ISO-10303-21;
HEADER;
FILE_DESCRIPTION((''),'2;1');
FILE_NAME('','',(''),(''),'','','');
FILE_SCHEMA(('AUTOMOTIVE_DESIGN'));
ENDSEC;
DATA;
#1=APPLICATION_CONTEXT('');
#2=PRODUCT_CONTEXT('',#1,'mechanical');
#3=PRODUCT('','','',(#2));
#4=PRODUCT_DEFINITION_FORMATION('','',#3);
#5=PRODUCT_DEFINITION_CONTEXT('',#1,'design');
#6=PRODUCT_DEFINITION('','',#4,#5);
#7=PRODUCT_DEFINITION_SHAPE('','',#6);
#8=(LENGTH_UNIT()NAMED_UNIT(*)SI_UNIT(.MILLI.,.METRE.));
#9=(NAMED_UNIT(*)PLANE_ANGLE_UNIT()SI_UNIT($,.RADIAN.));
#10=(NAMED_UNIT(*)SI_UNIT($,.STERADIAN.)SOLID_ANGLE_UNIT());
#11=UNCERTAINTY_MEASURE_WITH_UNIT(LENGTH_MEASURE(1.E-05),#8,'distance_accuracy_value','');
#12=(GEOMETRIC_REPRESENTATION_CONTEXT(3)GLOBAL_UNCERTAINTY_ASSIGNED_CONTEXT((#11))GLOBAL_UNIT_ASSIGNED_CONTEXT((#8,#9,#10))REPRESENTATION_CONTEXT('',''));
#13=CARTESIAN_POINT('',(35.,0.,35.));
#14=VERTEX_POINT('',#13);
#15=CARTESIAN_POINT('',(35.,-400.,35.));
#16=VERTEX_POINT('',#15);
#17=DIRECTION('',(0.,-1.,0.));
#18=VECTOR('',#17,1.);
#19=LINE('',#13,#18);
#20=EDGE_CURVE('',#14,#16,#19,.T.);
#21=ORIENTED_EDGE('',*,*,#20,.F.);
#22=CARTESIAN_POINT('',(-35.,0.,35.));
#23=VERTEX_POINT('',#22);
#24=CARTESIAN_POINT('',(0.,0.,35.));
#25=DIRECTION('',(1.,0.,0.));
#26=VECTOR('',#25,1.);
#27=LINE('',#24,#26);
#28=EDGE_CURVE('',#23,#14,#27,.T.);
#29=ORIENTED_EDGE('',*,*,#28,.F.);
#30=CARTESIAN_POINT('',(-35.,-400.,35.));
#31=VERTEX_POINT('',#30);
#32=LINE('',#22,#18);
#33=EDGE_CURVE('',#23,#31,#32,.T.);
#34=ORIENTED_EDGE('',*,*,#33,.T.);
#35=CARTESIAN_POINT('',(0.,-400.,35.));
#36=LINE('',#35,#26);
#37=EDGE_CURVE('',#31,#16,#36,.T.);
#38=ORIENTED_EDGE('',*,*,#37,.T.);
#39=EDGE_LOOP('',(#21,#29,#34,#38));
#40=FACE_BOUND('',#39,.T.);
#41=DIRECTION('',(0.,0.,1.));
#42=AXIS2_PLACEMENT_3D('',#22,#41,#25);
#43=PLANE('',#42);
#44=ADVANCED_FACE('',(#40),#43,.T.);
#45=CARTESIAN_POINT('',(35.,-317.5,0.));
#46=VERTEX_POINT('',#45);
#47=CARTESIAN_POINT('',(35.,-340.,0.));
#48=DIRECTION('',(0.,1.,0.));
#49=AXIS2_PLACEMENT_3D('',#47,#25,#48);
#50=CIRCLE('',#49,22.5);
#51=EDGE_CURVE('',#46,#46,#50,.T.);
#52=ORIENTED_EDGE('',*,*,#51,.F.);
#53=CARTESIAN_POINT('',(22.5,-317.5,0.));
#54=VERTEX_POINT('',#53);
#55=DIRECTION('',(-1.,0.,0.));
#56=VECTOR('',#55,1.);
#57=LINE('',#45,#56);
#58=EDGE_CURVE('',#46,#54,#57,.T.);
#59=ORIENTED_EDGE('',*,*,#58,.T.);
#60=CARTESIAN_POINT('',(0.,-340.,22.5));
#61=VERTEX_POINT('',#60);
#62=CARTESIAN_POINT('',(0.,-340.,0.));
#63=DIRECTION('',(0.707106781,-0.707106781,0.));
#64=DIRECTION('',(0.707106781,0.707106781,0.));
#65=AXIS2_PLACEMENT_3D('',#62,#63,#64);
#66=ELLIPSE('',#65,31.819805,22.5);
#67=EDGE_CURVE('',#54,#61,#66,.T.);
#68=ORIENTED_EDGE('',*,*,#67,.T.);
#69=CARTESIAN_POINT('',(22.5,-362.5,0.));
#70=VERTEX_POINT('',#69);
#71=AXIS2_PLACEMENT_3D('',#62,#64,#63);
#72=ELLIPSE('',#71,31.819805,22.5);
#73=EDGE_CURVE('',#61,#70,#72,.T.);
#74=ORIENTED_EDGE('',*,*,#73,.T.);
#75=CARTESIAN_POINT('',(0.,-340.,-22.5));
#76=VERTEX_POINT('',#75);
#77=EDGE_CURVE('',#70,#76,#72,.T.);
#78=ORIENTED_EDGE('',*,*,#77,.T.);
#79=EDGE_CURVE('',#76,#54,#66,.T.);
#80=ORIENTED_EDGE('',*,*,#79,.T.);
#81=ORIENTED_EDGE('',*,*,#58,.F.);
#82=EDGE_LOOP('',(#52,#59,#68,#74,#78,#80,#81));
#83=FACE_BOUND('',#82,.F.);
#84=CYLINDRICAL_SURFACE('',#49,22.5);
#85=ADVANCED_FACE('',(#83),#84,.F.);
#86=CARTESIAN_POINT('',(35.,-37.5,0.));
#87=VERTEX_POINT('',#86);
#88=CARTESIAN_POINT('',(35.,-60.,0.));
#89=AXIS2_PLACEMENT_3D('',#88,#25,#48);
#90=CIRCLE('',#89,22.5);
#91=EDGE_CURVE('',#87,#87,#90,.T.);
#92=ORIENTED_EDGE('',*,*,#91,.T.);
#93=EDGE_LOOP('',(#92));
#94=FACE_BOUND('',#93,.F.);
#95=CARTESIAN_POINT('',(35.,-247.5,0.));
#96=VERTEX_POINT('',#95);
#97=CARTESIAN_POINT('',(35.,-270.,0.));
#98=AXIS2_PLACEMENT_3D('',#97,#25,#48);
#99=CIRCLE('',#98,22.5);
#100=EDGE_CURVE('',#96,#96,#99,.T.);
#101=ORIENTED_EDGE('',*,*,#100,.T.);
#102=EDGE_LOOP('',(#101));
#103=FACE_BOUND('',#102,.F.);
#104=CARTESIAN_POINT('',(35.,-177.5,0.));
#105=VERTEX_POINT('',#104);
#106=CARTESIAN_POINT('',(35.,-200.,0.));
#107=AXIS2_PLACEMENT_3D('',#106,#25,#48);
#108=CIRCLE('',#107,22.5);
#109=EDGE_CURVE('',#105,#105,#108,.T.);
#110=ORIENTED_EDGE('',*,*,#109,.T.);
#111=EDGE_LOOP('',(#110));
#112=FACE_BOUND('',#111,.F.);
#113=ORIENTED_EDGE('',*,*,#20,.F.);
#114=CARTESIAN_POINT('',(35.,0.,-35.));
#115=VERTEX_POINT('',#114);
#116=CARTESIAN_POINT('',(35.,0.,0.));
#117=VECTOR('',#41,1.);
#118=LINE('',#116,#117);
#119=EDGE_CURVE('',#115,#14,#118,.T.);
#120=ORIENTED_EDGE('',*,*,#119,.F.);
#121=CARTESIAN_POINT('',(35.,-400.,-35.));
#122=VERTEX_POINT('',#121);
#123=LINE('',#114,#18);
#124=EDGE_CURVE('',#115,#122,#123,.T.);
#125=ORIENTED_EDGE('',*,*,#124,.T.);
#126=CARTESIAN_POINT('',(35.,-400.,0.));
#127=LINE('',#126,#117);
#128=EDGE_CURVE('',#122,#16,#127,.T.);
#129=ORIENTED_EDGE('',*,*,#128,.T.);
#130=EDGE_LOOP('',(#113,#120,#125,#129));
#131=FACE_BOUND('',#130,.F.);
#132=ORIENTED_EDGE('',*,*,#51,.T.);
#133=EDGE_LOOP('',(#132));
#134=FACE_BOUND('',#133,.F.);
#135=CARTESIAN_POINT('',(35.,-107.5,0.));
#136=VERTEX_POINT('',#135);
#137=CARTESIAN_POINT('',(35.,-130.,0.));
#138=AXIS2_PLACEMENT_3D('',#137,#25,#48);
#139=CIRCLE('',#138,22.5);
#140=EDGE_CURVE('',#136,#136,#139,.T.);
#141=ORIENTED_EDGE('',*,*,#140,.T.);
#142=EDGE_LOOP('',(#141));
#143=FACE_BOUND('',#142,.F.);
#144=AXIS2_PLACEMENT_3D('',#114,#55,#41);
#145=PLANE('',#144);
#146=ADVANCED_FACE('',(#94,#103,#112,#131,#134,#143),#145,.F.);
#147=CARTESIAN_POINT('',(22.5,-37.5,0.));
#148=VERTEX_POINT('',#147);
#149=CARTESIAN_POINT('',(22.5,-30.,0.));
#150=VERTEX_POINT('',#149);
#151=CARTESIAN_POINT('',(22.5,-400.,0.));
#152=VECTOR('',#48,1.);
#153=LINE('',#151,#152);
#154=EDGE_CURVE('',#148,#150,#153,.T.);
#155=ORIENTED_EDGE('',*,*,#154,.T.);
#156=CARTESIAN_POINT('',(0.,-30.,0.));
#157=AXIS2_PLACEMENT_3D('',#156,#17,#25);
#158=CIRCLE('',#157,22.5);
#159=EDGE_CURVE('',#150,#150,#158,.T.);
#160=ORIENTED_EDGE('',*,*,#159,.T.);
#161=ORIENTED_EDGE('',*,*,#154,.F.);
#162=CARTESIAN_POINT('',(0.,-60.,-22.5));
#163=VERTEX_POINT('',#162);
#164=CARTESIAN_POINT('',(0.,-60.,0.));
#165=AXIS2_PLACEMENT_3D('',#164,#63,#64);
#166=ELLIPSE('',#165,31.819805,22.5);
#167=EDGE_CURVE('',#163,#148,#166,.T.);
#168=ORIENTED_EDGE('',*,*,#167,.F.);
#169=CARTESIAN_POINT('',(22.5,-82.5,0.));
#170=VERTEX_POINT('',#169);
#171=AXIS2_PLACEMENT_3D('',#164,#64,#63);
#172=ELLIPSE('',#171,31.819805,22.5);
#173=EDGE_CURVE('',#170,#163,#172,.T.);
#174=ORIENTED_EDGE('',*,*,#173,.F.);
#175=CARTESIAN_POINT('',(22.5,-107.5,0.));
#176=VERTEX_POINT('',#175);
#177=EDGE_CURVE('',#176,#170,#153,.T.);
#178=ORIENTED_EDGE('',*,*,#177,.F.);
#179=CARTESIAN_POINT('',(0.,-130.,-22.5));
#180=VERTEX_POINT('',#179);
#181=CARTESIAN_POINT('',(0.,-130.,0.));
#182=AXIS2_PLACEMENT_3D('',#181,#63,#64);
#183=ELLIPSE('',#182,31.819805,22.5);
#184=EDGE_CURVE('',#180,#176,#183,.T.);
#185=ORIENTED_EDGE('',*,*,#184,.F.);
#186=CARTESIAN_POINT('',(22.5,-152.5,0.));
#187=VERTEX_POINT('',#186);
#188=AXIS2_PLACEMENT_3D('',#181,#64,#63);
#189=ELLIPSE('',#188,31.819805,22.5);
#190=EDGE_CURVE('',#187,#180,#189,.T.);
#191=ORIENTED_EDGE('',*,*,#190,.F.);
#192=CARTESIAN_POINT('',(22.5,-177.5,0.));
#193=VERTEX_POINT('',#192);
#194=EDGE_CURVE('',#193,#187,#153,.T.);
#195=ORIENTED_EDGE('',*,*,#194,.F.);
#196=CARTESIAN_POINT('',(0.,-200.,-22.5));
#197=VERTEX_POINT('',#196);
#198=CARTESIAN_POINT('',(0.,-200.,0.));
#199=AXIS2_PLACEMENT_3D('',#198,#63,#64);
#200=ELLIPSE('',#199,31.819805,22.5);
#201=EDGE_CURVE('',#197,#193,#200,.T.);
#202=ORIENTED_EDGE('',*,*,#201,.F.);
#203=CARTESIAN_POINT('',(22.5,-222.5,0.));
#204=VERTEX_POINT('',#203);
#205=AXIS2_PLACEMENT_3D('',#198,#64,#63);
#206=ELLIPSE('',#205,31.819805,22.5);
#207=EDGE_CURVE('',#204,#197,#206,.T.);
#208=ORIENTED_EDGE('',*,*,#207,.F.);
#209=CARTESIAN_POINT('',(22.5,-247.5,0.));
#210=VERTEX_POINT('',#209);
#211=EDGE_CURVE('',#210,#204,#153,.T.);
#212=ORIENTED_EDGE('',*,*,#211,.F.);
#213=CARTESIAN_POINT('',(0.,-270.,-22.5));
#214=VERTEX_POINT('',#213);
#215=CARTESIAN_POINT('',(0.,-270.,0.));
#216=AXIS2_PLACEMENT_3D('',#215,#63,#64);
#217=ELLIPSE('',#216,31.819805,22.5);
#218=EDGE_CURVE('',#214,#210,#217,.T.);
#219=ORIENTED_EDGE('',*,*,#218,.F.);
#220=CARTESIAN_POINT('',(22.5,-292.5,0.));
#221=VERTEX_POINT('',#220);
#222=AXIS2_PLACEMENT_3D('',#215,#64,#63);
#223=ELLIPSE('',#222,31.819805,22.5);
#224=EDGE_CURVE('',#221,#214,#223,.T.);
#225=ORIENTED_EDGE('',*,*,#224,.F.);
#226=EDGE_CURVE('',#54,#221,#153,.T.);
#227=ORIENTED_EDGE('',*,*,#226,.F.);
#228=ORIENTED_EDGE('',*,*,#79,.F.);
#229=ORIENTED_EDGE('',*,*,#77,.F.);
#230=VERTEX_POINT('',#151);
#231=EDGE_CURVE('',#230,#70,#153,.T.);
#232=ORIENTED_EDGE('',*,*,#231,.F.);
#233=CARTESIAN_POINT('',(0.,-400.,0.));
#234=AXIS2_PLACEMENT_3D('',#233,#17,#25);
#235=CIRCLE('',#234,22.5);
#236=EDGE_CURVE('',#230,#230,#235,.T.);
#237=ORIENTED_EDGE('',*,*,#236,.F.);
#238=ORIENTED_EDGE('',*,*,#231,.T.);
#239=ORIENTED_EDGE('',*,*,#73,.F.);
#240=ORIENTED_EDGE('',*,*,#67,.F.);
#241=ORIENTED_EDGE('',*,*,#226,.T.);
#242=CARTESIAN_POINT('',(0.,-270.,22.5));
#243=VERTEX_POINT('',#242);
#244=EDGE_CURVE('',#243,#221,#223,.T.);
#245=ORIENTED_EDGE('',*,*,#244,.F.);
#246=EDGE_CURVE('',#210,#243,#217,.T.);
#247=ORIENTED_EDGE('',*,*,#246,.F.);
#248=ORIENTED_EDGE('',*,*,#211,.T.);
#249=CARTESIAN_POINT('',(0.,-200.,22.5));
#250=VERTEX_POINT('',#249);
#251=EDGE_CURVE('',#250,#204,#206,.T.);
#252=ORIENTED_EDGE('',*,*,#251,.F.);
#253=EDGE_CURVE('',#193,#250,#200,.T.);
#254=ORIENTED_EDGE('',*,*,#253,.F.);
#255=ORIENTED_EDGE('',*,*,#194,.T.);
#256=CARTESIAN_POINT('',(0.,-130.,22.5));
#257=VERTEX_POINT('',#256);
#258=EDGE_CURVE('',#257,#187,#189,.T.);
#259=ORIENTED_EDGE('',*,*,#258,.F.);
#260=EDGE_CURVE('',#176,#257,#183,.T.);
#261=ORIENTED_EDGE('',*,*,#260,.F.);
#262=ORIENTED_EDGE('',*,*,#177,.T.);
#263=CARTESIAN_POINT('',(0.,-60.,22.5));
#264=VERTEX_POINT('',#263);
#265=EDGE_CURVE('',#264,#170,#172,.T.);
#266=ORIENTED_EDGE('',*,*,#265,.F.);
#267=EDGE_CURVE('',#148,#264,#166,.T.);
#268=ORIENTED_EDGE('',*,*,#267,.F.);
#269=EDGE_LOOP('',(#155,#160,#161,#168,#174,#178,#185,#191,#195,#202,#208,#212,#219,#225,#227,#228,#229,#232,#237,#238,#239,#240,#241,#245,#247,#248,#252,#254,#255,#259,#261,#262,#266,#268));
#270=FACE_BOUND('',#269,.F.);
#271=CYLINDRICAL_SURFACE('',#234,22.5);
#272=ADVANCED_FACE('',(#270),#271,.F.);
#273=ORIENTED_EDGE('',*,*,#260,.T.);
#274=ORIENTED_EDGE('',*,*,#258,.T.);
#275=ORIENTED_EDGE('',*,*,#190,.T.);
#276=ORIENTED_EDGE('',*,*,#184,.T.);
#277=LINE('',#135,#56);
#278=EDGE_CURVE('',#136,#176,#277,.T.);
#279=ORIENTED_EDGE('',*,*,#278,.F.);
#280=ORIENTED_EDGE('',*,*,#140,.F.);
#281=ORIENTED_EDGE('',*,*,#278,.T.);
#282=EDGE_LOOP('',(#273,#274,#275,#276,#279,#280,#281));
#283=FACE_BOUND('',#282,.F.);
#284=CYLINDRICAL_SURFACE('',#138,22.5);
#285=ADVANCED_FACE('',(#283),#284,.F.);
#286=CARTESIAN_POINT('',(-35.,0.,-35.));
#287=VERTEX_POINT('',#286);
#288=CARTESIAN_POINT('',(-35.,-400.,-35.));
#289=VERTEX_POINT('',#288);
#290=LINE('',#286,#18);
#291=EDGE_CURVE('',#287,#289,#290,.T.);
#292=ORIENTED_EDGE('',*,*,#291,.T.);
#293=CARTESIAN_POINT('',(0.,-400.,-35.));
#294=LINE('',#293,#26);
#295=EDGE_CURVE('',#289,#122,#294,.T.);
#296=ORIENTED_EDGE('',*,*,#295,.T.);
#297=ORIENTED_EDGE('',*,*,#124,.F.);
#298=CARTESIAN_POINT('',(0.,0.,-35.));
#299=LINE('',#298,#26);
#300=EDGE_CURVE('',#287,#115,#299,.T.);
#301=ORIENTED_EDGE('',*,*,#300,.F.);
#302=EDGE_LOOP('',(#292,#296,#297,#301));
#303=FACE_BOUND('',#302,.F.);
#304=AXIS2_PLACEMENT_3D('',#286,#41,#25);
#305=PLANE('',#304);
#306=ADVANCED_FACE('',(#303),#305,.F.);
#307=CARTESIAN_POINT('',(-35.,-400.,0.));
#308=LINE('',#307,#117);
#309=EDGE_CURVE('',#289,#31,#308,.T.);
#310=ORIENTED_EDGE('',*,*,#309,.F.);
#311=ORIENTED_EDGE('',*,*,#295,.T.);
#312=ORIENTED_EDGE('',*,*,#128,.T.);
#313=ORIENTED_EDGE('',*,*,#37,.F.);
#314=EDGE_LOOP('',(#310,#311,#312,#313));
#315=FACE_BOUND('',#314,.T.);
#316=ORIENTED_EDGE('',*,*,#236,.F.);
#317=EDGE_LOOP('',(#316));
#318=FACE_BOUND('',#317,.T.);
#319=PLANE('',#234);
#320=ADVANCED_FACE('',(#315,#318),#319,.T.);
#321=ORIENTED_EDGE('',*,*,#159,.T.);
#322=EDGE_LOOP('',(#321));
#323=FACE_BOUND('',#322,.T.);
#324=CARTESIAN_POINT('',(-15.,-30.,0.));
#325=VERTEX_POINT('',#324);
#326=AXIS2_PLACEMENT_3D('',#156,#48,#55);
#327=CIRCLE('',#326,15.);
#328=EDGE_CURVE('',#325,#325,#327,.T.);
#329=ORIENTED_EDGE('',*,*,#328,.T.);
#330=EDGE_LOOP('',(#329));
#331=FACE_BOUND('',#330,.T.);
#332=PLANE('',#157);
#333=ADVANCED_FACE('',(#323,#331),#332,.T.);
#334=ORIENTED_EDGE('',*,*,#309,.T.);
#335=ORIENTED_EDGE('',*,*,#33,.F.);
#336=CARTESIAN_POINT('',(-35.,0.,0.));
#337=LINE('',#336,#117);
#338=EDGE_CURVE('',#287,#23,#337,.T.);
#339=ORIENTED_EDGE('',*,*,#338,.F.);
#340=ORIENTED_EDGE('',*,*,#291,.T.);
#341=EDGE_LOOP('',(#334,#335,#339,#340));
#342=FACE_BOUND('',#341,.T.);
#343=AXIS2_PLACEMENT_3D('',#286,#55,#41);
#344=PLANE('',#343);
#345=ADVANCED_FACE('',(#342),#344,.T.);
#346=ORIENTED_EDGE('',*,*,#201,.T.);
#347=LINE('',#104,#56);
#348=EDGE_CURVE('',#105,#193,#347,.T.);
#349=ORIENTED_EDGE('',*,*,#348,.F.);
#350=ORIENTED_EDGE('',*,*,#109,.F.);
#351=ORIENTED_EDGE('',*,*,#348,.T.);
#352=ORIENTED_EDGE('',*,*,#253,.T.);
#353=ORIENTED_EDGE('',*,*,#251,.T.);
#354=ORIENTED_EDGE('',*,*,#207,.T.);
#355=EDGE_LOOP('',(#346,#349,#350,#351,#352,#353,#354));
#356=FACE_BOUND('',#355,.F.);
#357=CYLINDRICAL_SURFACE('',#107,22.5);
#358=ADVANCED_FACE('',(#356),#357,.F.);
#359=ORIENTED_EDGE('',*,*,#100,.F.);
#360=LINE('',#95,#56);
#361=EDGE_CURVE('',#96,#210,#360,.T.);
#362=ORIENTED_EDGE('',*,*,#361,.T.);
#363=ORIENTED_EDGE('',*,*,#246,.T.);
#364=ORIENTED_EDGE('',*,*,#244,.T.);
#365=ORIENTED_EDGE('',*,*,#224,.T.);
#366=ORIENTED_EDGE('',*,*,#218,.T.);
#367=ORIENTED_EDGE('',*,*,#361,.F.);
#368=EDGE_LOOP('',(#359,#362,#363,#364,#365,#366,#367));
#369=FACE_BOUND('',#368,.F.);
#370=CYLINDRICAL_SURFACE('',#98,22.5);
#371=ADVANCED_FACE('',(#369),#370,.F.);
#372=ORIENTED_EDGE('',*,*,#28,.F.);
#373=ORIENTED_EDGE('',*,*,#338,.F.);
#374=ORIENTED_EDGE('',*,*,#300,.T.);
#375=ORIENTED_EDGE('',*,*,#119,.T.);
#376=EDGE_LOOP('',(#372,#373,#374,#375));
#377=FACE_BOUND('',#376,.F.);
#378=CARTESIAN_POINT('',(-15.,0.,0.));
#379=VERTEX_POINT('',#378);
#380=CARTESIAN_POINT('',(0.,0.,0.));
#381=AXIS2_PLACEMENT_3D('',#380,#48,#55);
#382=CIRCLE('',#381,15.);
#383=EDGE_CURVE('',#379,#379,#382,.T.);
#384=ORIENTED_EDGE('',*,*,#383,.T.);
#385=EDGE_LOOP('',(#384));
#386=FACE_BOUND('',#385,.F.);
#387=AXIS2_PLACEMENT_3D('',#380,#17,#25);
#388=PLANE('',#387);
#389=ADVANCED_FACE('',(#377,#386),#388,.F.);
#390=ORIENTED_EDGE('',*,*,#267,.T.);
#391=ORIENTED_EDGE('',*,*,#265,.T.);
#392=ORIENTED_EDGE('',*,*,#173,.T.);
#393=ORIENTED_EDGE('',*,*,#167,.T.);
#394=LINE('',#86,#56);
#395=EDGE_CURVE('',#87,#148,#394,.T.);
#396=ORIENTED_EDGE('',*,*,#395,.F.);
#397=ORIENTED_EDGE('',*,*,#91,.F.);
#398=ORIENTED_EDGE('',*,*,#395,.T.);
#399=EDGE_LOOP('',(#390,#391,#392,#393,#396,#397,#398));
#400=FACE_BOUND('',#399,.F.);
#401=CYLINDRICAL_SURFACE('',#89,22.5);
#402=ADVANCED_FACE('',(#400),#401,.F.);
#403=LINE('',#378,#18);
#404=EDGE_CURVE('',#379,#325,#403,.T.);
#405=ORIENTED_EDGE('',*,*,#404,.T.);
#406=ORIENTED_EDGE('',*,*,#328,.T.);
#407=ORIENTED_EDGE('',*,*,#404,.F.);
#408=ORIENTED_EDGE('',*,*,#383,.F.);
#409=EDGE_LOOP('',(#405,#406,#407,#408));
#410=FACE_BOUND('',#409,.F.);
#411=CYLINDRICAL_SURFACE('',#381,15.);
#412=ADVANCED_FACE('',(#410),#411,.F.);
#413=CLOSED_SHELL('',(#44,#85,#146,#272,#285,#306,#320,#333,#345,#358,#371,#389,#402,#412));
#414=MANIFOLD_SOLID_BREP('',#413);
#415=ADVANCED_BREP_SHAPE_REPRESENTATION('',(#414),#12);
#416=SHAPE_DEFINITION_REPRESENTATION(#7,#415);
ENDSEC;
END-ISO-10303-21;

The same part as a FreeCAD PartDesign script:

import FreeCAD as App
import Part
import Sketcher

V = App.Vector
Q = App.Units.Quantity

doc = App.newDocument("Part")
body = doc.addObject("PartDesign::Body", "Body")

# Sketch on XZ plane
sketch1 = doc.addObject("Sketcher::SketchObject", "Sketch")
body.addObject(sketch1)
sketch1.AttachmentSupport = (doc.XZ_Plane, [""])
sketch1.MapMode = "FlatFace"
sketch1.addGeometry([
    Part.LineSegment(V(-35, 35, 0), V(-35, -35, 0)),
    Part.LineSegment(V(-35, -35, 0), V(35, -35, 0)),
    Part.LineSegment(V(35, -35, 0), V(35, 35, 0)),
    Part.LineSegment(V(35, 35, 0), V(-35, 35, 0)),
], False)
sketch1.addConstraint([
    Sketcher.Constraint("Coincident", 0, 2, 1, 1),
    Sketcher.Constraint("Coincident", 1, 2, 2, 1),
    Sketcher.Constraint("Coincident", 2, 2, 3, 1),
    Sketcher.Constraint("Coincident", 3, 2, 0, 1),
    Sketcher.Constraint("Vertical", 0),
    Sketcher.Constraint("Horizontal", 1),
    Sketcher.Constraint("Vertical", 2),
    Sketcher.Constraint("Horizontal", 3),
    Sketcher.Constraint("Symmetric", 0, 2, 2, 2, -1, 1),
    Sketcher.Constraint("Equal", 3, 0),
    Sketcher.Constraint("DistanceX", 1, 1, 1, 2, Q("70 mm")),
])
pad1 = doc.addObject("PartDesign::Pad", "Pad")
body.addObject(pad1)
pad1.Profile = sketch1
pad1.Length = 400

# Sketch on YZ plane
sketch2 = doc.addObject("Sketcher::SketchObject", "Sketch001")
body.addObject(sketch2)
sketch2.AttachmentSupport = (doc.YZ_Plane, [""])
sketch2.MapMode = "FlatFace"
sketch2.AttachmentOffset = App.Placement(V(0, 0, 35), App.Rotation())
sketch2.addGeometry([
    Part.Circle(V(-340, 0, 0), V(0, 0, 1), 22),  # 0
    Part.Circle(V(-270, 0, 0), V(0, 0, 1), 22),  # 1
    Part.Circle(V(-200, 0, 0), V(0, 0, 1), 22),  # 2
    Part.Circle(V(-130, 0, 0), V(0, 0, 1), 22),  # 3
    Part.Circle(V(-60, 0, 0), V(0, 0, 1), 22),  # 4
], False)
sketch2.addConstraint([
    Sketcher.Constraint("Equal", 0, 1),
    Sketcher.Constraint("Equal", 1, 2),
    Sketcher.Constraint("Equal", 2, 3),
    Sketcher.Constraint("Equal", 3, 4),
    Sketcher.Constraint("PointOnObject", 0, 3, -1),
    Sketcher.Constraint("PointOnObject", 1, 3, -1),
    Sketcher.Constraint("PointOnObject", 2, 3, -1),
    Sketcher.Constraint("PointOnObject", 3, 3, -1),
    Sketcher.Constraint("PointOnObject", 4, 3, -1),
    Sketcher.Constraint("Diameter", 0, Q("45 mm")),
    Sketcher.Constraint("DistanceX", 0, 3, -1, 1, Q("340 mm")),
    Sketcher.Constraint("DistanceX", 1, 3, -1, 1, Q("270 mm")),
    Sketcher.Constraint("DistanceX", 2, 3, -1, 1, Q("200 mm")),
    Sketcher.Constraint("DistanceX", 3, 3, -1, 1, Q("130 mm")),
    Sketcher.Constraint("DistanceX", 4, 3, -1, 1, Q("60 mm")),
])
pocket1 = doc.addObject("PartDesign::Pocket", "Pocket")
body.addObject(pocket1)
pocket1.Profile = sketch2
pocket1.Length = 35

# Sketch on XZ plane
sketch3 = doc.addObject("Sketcher::SketchObject", "Sketch002")
body.addObject(sketch3)
sketch3.AttachmentSupport = (doc.XZ_Plane, [""])
sketch3.MapMode = "FlatFace"
sketch3.AttachmentOffset = App.Placement(V(0, 0, 400), App.Rotation())
sketch3.addGeometry(Part.Circle(V(0, 0, 0), V(0, 0, 1), 22), False)
sketch3.addConstraint([
    Sketcher.Constraint("Coincident", 0, 3, -1, 1),
    Sketcher.Constraint("Diameter", 0, Q("45 mm")),
])
pocket2 = doc.addObject("PartDesign::Pocket", "Pocket001")
body.addObject(pocket2)
pocket2.Profile = sketch3
pocket2.Length = 370

# Sketch on XZ plane
sketch4 = doc.addObject("Sketcher::SketchObject", "Sketch003")
body.addObject(sketch4)
sketch4.AttachmentSupport = (doc.XZ_Plane, [""])
sketch4.MapMode = "FlatFace"
sketch4.addGeometry(Part.Circle(V(0, 0, 0), V(0, 0, 1), 15), False)
sketch4.addConstraint([
    Sketcher.Constraint("Coincident", 0, 3, -1, 1),
    Sketcher.Constraint("Diameter", 0, Q("30 mm")),
])
pocket3 = doc.addObject("PartDesign::Pocket", "Pocket002")
body.addObject(pocket3)
pocket3.Profile = sketch4
pocket3.Length = 45
pocket3.Reversed = True

doc.recompute()
